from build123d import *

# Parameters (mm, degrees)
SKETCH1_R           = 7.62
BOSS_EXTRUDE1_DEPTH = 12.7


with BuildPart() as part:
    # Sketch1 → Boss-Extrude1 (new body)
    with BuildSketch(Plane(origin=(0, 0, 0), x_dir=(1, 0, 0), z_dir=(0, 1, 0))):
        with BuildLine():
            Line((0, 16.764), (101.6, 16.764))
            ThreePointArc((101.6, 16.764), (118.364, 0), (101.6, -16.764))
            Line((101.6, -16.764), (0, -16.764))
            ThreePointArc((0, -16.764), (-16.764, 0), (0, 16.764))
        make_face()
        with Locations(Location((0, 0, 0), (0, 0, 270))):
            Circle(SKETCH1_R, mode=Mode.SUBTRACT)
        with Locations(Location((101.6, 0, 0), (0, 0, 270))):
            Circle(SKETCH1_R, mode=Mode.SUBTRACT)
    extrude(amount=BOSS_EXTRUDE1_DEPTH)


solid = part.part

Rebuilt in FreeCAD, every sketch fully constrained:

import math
import FreeCAD as App
import Part
import Sketcher
Q = App.Units.Quantity

doc = App.newDocument("Part")
body = doc.addObject("PartDesign::Body", "Body")

sketch1 = body.newObject("Sketcher::SketchObject", "Sketch")
sketch1.AttachmentSupport = (doc.getObject("XZ_Plane"), [""])
sketch1.MapMode = "FlatFace"
sketch1.addGeometry([
    Part.LineSegment(App.Vector(102, -17, 0), App.Vector(0, -17, 0)),
    Part.ArcOfCircle(Part.Circle(App.Vector(0, 0, 0), App.Vector(0, 0, 1), 17), math.radians(90), math.radians(270)),
    Part.LineSegment(App.Vector(0, 17, 0), App.Vector(102, 17, 0)),
    Part.ArcOfCircle(Part.Circle(App.Vector(102, 0, 0), App.Vector(0, 0, 1), 17), math.radians(-90), math.radians(90)),
    Part.Circle(App.Vector(102, 0, 0), App.Vector(0, 0, 1), 8),
    Part.Circle(App.Vector(0, 0, 0), App.Vector(0, 0, 1), 8),
], False)
sketch1.addConstraint([
    Sketcher.Constraint("Tangent", 0, 2, 1, 2),
    Sketcher.Constraint("Tangent", 1, 1, 2, 1),
    Sketcher.Constraint("Tangent", 2, 2, 3, 2),
    Sketcher.Constraint("Tangent", 3, 1, 0, 1),
    Sketcher.Constraint("Horizontal", 0),
    Sketcher.Constraint("Horizontal", 2),
    Sketcher.Constraint("Coincident", 1, 3, -1, 1),
    Sketcher.Constraint("Coincident", 5, 3, -1, 1),
    Sketcher.Constraint("Coincident", 4, 3, 3, 3),
    Sketcher.Constraint("Equal", 4, 5),
    Sketcher.Constraint("Diameter", 4, Q("0.6 in")),
    Sketcher.Constraint("DistanceX", 0, 2, 0, 1, Q("4 in")),
    Sketcher.Constraint("Radius", 1, Q("0.66 in")),
])
pad1 = body.newObject("PartDesign::Pad", "Pad")
pad1.Profile = sketch1
pad1.Length = Q("0.5 in")
pad1.Reversed = True

doc.recompute()
